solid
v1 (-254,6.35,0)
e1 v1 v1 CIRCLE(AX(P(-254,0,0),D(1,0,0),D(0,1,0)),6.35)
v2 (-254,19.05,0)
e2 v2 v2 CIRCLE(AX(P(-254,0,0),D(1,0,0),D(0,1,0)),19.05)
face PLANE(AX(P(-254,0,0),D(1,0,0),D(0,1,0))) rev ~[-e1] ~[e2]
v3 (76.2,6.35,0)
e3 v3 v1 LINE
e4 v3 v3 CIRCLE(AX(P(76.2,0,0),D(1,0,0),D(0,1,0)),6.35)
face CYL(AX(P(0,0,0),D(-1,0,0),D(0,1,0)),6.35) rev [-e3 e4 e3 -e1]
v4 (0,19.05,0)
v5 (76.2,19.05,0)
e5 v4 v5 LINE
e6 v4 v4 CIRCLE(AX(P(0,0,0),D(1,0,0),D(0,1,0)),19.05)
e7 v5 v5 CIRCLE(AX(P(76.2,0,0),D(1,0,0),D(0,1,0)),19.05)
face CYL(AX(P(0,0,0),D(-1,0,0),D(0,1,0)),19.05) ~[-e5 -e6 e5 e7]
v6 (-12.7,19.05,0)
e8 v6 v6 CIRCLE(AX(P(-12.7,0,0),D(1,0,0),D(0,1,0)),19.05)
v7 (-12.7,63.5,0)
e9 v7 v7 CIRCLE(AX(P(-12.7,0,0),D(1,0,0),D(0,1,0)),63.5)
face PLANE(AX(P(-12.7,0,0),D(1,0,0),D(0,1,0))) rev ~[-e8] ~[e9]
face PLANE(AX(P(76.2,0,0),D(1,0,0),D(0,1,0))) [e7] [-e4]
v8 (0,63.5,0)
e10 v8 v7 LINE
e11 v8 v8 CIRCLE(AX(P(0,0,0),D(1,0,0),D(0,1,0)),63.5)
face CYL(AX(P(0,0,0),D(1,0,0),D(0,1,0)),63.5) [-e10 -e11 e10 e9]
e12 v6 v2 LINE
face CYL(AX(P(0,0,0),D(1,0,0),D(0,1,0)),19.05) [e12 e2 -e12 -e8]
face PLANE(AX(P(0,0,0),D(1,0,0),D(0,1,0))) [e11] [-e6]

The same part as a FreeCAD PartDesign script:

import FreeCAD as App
import Part
import Sketcher

V = App.Vector
Q = App.Units.Quantity

doc = App.newDocument("Part")
body = doc.addObject("PartDesign::Body", "Body")

sketch1 = doc.addObject("Sketcher::SketchObject", "Sketch")
body.addObject(sketch1)
sketch1.AttachmentSupport = (doc.YZ_Plane, [""])
sketch1.MapMode = "FlatFace"
sketch1.addGeometry([
    Part.Circle(V(0, 0, 0), V(0, 0, 1), 19.05),
    Part.Circle(V(0, 0, 0), V(0, 0, 1), 6.35),
], False)
sketch1.addConstraint([
    Sketcher.Constraint("Coincident", 0, 3, -1, 1),
    Sketcher.Constraint("Coincident", 1, 3, -1, 1),
    Sketcher.Constraint("Diameter", 0, Q("1.5 in")),
    Sketcher.Constraint("Diameter", 1, Q("0.5 in")),
])
pad1 = doc.addObject("PartDesign::Pad", "Pad")
body.addObject(pad1)
pad1.Profile = sketch1
pad1.Type = "TwoLengths"
pad1.Length = Q("10 in")
pad1.Length2 = Q("3 in")
pad1.Reversed = True

sketch2 = doc.addObject("Sketcher::SketchObject", "Sketch001")
body.addObject(sketch2)
sketch2.AttachmentSupport = (doc.YZ_Plane, [""])
sketch2.MapMode = "FlatFace"
sketch2.addGeometry([
    Part.Circle(V(0, 0, 0), V(0, 0, 1), 63.5),
    Part.Circle(V(0, 0, 0), V(0, 0, 1), 19.05),
], False)
sketch2.addConstraint([
    Sketcher.Constraint("Coincident", 0, 3, -1, 1),
    Sketcher.Constraint("Coincident", 1, 3, -1, 1),
    Sketcher.Constraint("Diameter", 0, Q("5 in")),
    Sketcher.Constraint("Diameter", 1, Q("1.5 in")),
])
pad2 = doc.addObject("PartDesign::Pad", "Pad001")
body.addObject(pad2)
pad2.Profile = sketch2
pad2.Length = Q("0.5 in")
pad2.Reversed = True

doc.recompute()
